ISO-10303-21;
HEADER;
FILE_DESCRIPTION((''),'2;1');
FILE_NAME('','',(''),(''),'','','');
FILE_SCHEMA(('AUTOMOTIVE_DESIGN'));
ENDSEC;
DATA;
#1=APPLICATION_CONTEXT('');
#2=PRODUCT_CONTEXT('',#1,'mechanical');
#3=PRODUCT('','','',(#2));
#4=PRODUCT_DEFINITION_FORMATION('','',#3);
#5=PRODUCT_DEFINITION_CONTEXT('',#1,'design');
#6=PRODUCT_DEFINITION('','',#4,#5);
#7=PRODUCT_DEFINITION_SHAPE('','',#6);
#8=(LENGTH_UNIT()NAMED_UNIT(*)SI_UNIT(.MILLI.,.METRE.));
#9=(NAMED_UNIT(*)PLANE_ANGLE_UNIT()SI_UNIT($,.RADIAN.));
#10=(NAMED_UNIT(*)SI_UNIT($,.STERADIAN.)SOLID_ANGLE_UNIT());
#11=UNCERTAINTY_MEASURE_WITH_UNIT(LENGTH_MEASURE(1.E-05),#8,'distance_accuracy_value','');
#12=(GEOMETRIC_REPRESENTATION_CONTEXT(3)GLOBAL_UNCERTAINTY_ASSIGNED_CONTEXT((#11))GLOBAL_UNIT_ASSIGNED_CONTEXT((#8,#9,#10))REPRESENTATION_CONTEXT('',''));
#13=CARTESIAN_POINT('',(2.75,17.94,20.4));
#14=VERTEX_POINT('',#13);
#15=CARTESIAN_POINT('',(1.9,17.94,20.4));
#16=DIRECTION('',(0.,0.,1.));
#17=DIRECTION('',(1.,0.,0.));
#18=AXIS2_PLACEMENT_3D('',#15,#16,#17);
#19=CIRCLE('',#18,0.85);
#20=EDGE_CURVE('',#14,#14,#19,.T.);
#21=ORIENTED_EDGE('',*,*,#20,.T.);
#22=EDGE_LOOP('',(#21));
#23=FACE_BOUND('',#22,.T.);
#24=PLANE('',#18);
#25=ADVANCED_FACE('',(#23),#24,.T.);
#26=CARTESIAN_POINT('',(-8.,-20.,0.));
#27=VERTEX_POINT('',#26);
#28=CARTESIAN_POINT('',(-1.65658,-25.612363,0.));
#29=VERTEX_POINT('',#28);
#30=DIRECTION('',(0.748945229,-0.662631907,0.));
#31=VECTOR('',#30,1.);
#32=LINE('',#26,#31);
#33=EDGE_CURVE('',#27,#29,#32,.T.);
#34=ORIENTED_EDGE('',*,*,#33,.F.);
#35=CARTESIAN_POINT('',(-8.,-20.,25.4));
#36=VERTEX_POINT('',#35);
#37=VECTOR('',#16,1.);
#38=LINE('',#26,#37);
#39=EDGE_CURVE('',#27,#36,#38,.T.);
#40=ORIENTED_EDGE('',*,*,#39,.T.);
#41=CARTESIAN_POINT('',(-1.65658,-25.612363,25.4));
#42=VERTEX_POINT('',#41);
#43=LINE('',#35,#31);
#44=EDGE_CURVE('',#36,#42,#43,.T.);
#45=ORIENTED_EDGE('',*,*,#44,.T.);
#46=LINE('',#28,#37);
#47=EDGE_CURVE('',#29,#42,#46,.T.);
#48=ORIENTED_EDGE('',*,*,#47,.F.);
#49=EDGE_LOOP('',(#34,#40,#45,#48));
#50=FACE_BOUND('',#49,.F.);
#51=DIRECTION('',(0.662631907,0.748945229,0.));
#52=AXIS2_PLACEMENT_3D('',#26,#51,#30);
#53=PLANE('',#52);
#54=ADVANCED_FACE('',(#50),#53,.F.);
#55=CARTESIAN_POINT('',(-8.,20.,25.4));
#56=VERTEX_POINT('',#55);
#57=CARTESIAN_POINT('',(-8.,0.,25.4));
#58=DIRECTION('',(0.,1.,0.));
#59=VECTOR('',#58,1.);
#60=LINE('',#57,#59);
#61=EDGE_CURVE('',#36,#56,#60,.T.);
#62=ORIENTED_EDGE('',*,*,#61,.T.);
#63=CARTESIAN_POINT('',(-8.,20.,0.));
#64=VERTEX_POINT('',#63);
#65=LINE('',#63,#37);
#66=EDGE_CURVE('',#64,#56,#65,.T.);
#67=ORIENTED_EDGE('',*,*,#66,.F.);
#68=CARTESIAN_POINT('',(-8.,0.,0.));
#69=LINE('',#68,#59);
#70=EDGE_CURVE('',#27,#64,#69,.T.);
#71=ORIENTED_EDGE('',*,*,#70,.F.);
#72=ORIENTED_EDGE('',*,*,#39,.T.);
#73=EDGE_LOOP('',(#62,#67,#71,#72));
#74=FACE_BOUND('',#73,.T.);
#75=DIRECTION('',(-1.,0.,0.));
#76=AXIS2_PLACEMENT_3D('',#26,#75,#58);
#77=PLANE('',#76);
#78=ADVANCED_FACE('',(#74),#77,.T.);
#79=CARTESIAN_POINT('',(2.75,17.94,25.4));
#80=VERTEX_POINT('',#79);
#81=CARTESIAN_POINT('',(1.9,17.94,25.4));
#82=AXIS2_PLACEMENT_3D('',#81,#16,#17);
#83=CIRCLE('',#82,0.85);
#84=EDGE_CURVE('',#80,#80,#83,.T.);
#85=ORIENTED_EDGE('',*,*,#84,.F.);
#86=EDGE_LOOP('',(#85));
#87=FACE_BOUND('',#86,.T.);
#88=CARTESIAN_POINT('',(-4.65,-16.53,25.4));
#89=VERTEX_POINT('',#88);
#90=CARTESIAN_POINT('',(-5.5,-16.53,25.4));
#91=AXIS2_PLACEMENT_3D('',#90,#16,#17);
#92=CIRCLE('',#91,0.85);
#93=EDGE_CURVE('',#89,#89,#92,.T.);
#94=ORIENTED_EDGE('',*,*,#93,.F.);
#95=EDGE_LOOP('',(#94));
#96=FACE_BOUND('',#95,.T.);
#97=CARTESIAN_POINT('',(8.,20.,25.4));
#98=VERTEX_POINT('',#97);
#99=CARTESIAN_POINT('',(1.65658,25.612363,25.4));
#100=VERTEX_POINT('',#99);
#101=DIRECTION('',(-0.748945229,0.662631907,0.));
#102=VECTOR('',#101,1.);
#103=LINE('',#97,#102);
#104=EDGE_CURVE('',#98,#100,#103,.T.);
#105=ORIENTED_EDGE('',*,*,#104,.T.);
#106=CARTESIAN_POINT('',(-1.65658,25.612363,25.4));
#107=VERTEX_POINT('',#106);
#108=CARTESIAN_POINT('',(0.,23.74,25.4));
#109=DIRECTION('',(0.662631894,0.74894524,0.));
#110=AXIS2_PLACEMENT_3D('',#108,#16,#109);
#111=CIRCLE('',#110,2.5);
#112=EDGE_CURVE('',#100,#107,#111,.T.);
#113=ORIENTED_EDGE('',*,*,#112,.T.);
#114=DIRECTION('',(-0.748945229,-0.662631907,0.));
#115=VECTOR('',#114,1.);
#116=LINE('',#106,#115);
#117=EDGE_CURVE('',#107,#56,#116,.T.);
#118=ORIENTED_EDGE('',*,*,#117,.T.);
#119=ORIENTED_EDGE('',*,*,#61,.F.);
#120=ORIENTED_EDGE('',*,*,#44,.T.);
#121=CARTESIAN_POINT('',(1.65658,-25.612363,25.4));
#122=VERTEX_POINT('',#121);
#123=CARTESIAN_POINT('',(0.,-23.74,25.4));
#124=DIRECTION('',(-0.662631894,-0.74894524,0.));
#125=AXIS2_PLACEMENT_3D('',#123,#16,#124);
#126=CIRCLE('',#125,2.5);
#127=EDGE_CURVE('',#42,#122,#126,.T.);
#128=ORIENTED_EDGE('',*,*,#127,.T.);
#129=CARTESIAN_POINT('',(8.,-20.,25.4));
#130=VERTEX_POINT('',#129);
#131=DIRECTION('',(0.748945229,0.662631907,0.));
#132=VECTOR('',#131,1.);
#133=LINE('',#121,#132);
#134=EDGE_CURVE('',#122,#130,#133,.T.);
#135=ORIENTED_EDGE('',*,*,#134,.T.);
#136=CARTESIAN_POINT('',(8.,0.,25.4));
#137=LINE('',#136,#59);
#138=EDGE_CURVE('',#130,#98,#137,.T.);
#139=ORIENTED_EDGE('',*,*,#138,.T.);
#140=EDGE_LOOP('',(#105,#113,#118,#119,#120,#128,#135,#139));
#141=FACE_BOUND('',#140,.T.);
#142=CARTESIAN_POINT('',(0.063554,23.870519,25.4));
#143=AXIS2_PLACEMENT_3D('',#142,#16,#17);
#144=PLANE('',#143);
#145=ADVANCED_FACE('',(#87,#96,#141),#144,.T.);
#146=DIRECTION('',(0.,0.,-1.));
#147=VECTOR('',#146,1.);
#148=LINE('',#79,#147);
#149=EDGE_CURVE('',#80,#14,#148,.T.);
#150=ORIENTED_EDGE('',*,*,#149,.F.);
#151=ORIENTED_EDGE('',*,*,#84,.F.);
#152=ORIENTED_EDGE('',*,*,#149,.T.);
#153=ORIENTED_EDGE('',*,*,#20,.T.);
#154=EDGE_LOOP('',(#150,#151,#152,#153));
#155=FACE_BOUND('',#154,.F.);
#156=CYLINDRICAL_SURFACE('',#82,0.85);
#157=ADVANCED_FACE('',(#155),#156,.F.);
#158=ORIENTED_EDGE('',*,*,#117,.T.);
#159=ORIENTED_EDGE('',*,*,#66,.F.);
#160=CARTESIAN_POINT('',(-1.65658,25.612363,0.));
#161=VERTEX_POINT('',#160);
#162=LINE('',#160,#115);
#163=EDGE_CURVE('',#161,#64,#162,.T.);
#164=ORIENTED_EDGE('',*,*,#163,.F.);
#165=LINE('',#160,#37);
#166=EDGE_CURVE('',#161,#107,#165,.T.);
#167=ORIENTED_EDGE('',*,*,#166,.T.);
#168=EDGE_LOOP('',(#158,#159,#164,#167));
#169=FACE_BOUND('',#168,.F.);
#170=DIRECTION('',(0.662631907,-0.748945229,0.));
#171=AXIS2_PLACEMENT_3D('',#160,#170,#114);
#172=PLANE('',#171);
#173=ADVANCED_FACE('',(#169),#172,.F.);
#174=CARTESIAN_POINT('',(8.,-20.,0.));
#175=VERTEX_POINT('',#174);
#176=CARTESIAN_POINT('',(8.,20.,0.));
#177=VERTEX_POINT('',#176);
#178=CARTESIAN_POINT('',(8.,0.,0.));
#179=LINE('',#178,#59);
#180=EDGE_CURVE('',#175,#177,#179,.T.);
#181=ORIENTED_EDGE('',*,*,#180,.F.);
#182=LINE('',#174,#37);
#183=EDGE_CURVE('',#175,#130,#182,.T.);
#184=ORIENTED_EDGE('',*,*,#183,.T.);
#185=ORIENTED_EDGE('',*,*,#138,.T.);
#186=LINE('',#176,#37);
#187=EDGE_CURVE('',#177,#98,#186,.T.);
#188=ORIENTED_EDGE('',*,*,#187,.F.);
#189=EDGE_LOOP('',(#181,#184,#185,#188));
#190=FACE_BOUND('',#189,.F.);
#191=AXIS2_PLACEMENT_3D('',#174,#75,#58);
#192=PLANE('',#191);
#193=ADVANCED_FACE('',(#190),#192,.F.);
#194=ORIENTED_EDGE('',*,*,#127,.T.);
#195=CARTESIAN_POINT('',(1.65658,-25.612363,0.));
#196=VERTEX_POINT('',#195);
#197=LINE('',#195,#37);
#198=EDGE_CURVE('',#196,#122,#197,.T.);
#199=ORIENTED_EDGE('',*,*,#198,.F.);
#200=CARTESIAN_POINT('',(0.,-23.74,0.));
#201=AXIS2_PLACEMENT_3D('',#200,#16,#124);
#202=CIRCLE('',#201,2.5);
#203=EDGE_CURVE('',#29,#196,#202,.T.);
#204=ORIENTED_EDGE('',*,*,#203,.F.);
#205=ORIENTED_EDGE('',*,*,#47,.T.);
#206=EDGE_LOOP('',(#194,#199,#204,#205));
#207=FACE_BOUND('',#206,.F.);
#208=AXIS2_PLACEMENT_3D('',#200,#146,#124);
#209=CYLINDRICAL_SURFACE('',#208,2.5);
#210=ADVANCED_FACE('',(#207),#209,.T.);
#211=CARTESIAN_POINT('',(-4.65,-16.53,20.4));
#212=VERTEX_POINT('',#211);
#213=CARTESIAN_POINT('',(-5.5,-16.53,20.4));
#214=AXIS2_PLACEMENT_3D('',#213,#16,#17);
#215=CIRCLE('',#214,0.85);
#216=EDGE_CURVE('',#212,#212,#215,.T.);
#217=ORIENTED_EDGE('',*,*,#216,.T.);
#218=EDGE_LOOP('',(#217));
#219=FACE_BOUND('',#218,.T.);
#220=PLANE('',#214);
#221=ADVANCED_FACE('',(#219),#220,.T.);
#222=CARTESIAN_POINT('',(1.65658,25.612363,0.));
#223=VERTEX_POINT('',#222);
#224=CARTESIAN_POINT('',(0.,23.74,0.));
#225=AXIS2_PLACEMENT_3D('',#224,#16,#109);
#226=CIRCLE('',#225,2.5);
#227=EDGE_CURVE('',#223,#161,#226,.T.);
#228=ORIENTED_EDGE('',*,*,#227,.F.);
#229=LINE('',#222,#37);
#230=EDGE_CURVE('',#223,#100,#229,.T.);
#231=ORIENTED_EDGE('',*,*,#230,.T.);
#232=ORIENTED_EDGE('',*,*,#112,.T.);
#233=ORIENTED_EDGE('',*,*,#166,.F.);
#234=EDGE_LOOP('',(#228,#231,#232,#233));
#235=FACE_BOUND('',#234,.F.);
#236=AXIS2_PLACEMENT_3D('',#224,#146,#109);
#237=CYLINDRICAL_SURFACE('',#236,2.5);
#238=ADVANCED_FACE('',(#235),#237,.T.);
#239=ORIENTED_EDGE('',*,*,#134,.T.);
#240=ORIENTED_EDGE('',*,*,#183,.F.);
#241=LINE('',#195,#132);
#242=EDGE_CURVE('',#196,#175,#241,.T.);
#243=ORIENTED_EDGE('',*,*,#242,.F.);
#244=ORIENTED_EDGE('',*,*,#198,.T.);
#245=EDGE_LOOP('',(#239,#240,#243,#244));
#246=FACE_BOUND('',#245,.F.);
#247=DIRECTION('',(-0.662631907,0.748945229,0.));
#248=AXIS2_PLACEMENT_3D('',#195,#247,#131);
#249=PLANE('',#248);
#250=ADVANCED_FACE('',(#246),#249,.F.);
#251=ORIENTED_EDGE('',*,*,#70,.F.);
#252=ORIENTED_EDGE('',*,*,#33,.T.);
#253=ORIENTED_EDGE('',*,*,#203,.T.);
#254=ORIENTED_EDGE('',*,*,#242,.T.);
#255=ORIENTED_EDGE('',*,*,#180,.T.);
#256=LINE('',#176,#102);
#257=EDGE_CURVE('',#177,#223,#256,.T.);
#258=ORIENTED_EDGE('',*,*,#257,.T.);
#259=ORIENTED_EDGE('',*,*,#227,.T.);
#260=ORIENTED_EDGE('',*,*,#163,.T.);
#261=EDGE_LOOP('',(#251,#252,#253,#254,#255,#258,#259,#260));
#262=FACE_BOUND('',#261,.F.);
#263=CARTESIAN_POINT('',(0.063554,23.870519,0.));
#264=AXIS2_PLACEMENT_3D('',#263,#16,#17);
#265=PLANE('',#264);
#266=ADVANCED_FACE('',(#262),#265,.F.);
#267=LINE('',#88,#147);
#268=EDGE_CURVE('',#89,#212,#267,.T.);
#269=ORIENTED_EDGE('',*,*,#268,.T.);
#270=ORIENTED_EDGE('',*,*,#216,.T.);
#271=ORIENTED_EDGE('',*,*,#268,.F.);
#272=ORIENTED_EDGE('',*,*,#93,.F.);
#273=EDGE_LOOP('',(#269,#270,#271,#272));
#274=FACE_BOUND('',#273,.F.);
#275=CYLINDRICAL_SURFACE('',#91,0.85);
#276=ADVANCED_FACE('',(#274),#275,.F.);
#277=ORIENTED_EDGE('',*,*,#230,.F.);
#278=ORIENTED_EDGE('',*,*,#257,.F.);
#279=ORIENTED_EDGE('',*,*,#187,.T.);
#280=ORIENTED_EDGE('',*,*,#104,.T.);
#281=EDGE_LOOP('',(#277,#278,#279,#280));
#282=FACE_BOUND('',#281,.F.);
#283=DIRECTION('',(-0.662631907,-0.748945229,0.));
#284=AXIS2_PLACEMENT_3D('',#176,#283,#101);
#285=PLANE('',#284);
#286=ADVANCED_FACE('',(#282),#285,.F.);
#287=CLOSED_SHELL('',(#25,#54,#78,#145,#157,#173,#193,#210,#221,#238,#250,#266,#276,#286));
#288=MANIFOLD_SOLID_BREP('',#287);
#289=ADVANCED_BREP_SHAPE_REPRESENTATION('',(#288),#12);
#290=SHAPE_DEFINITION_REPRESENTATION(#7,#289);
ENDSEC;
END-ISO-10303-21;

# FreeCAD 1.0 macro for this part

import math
import FreeCAD as App
import Part
import Sketcher

V = App.Vector

doc = App.newDocument("Part")
body = doc.addObject("PartDesign::Body", "Body")

# Sketch on XY plane
sketch1 = body.newObject("Sketcher::SketchObject", "Sketch")
sketch1.AttachmentSupport = (doc.getObject("XY_Plane"), [""])
sketch1.MapMode = "FlatFace"
sketch1.addGeometry([
    Part.ArcOfCircle(Part.Circle(V(0, 23.7, 0), V(0, 0, 1), 2.5), math.radians(48), math.radians(132)),  # 0
    Part.LineSegment(V(-1.7, 25.6, 0), V(-8, 20, 0)),  # 1
    Part.LineSegment(V(-8, 20, 0), V(-8, -20, 0)),  # 2
    Part.LineSegment(V(-8, -20, 0), V(-1.7, -25.6, 0)),  # 3
    Part.ArcOfCircle(Part.Circle(V(0, -23.7, 0), V(0, 0, 1), 2.5), math.radians(-132), math.radians(-48)),  # 4
    Part.LineSegment(V(1.7, -25.6, 0), V(8, -20, 0)),  # 5
    Part.LineSegment(V(8, -20, 0), V(8, 20, 0)),  # 6
    Part.LineSegment(V(8, 20, 0), V(1.7, 25.6, 0)),  # 7
], False)
sketch1.addConstraint([
    Sketcher.Constraint("Tangent", 0, 2, 1, 1),
    Sketcher.Constraint("Coincident", 1, 2, 2, 1),
    Sketcher.Constraint("Coincident", 2, 2, 3, 1),
    Sketcher.Constraint("Tangent", 3, 2, 4, 1),
    Sketcher.Constraint("Tangent", 4, 2, 5, 1),
    Sketcher.Constraint("Coincident", 5, 2, 6, 1),
    Sketcher.Constraint("Coincident", 6, 2, 7, 1),
    Sketcher.Constraint("Tangent", 7, 2, 0, 1),
    Sketcher.Constraint("Vertical", 2),
    Sketcher.Constraint("Vertical", 6),
    Sketcher.Constraint("Equal", 0, 4),
    Sketcher.Constraint("Symmetric", 0, 3, 4, 3, -1, 1),
    Sketcher.Constraint("Symmetric", 1, 2, 5, 2, -1, 1),
    Sketcher.Constraint("Symmetric", 3, 2, 4, 2, -2),
    Sketcher.Constraint("Parallel", 3, 7),
    Sketcher.Constraint("Radius", 0, 2.5),
    Sketcher.Constraint("DistanceY", 2, 2, 2, 1, 40.0),
    Sketcher.Constraint("DistanceX", 1, 2, -1, 1, 8.0),
    Sketcher.Constraint("DistanceY", -1, 1, 0, 3, 23.74),
])
pad1 = body.newObject("PartDesign::Pad", "Pad")
pad1.Profile = sketch1
pad1.Length = 25.4

# Sketch on XY plane
sketch2 = body.newObject("Sketcher::SketchObject", "Sketch001")
sketch2.AttachmentSupport = (doc.getObject("XY_Plane"), [""])
sketch2.MapMode = "FlatFace"
sketch2.AttachmentOffset = App.Placement(V(0, 0, 25.4), App.Rotation())
sketch2.addGeometry([
    Part.Circle(V(1.9, 17.9, 0), V(0, 0, 1), 0.8),
    Part.Circle(V(-5.5, -16.5, 0), V(0, 0, 1), 0.8),
], False)
sketch2.addConstraint([
    Sketcher.Constraint("Equal", 0, 1),
    Sketcher.Constraint("Diameter", 0, 1.7),
    Sketcher.Constraint("DistanceX", -1, 1, 0, 3, 1.9),
    Sketcher.Constraint("DistanceX", 1, 3, -1, 1, 5.5),
    Sketcher.Constraint("DistanceY", -1, 1, 0, 3, 17.94),
    Sketcher.Constraint("DistanceY", 1, 3, -1, 1, 16.53),
])
pocket1 = body.newObject("PartDesign::Pocket", "Pocket")
pocket1.Profile = sketch2
pocket1.Length = 5

doc.recompute()
